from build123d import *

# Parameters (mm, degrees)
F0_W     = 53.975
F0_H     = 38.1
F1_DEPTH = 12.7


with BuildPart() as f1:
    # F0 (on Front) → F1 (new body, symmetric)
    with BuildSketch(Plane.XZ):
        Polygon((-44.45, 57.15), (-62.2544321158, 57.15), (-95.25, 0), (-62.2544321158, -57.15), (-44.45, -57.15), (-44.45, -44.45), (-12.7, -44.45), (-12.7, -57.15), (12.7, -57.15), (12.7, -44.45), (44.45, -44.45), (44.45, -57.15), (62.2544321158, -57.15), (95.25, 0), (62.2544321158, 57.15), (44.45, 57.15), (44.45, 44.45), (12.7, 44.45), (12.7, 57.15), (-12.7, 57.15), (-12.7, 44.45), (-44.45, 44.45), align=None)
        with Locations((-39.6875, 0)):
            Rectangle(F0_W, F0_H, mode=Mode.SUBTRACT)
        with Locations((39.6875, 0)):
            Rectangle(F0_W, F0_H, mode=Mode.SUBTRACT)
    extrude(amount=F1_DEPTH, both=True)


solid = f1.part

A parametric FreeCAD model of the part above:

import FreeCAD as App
import Part
import Sketcher
from FreeCAD import Vector
Q = App.Units.Quantity

doc = App.newDocument("Part")
body = doc.addObject("PartDesign::Body", "Body")

# Sketch on XZ plane
sketch1 = doc.addObject("Sketcher::SketchObject", "Sketch")
body.addObject(sketch1)
sketch1.AttachmentSupport = (doc.XZ_Plane, [""])
sketch1.MapMode = "FlatFace"
sketch1.addGeometry([
    Part.LineSegment(Vector(-44, 57, 0), Vector(-62, 57, 0)),  # 0
    Part.LineSegment(Vector(-62, 57, 0), Vector(-95, 0, 0)),  # 1
    Part.LineSegment(Vector(-95, 0, 0), Vector(-62, -57, 0)),  # 2
    Part.LineSegment(Vector(-62, -57, 0), Vector(-44, -57, 0)),  # 3
    Part.LineSegment(Vector(-44, -57, 0), Vector(-44, -44, 0)),  # 4
    Part.LineSegment(Vector(-44, -44, 0), Vector(-13, -44, 0)),  # 5
    Part.LineSegment(Vector(-13, -44, 0), Vector(-13, -57, 0)),  # 6
    Part.LineSegment(Vector(-13, -57, 0), Vector(13, -57, 0)),  # 7
    Part.LineSegment(Vector(13, -57, 0), Vector(13, -44, 0)),  # 8
    Part.LineSegment(Vector(13, -44, 0), Vector(44, -44, 0)),  # 9
    Part.LineSegment(Vector(44, -44, 0), Vector(44, -57, 0)),  # 10
    Part.LineSegment(Vector(44, -57, 0), Vector(62, -57, 0)),  # 11
    Part.LineSegment(Vector(62, -57, 0), Vector(95, 0, 0)),  # 12
    Part.LineSegment(Vector(95, 0, 0), Vector(62, 57, 0)),  # 13
    Part.LineSegment(Vector(62, 57, 0), Vector(44, 57, 0)),  # 14
    Part.LineSegment(Vector(44, 57, 0), Vector(44, 44, 0)),  # 15
    Part.LineSegment(Vector(44, 44, 0), Vector(13, 44, 0)),  # 16
    Part.LineSegment(Vector(13, 44, 0), Vector(13, 57, 0)),  # 17
    Part.LineSegment(Vector(13, 57, 0), Vector(-13, 57, 0)),  # 18
    Part.LineSegment(Vector(-13, 57, 0), Vector(-13, 44, 0)),  # 19
    Part.LineSegment(Vector(-13, 44, 0), Vector(-44, 44, 0)),  # 20
    Part.LineSegment(Vector(-44, 44, 0), Vector(-44, 57, 0)),  # 21
    Part.LineSegment(Vector(-13, -19, 0), Vector(-67, -19, 0)),  # 22
    Part.LineSegment(Vector(-67, -19, 0), Vector(-67, 19, 0)),  # 23
    Part.LineSegment(Vector(-67, 19, 0), Vector(-13, 19, 0)),  # 24
    Part.LineSegment(Vector(-13, 19, 0), Vector(-13, -19, 0)),  # 25
    Part.LineSegment(Vector(67, -19, 0), Vector(13, -19, 0)),  # 26
    Part.LineSegment(Vector(13, -19, 0), Vector(13, 19, 0)),  # 27
    Part.LineSegment(Vector(13, 19, 0), Vector(67, 19, 0)),  # 28
    Part.LineSegment(Vector(67, 19, 0), Vector(67, -19, 0)),  # 29
], False)
sketch1.addConstraint([
    Sketcher.Constraint("Coincident", 0, 2, 1, 1),
    Sketcher.Constraint("Coincident", 1, 2, 2, 1),
    Sketcher.Constraint("Coincident", 2, 2, 3, 1),
    Sketcher.Constraint("Coincident", 3, 2, 4, 1),
    Sketcher.Constraint("Coincident", 4, 2, 5, 1),
    Sketcher.Constraint("Coincident", 5, 2, 6, 1),
    Sketcher.Constraint("Coincident", 6, 2, 7, 1),
    Sketcher.Constraint("Coincident", 7, 2, 8, 1),
    Sketcher.Constraint("Coincident", 8, 2, 9, 1),
    Sketcher.Constraint("Coincident", 9, 2, 10, 1),
    Sketcher.Constraint("Coincident", 10, 2, 11, 1),
    Sketcher.Constraint("Coincident", 11, 2, 12, 1),
    Sketcher.Constraint("Coincident", 12, 2, 13, 1),
    Sketcher.Constraint("Coincident", 13, 2, 14, 1),
    Sketcher.Constraint("Coincident", 14, 2, 15, 1),
    Sketcher.Constraint("Coincident", 15, 2, 16, 1),
    Sketcher.Constraint("Coincident", 16, 2, 17, 1),
    Sketcher.Constraint("Coincident", 17, 2, 18, 1),
    Sketcher.Constraint("Coincident", 18, 2, 19, 1),
    Sketcher.Constraint("Coincident", 19, 2, 20, 1),
    Sketcher.Constraint("Coincident", 20, 2, 21, 1),
    Sketcher.Constraint("Coincident", 21, 2, 0, 1),
    Sketcher.Constraint("Coincident", 22, 2, 23, 1),
    Sketcher.Constraint("Coincident", 23, 2, 24, 1),
    Sketcher.Constraint("Coincident", 24, 2, 25, 1),
    Sketcher.Constraint("Coincident", 25, 2, 22, 1),
    Sketcher.Constraint("Coincident", 26, 2, 27, 1),
    Sketcher.Constraint("Coincident", 27, 2, 28, 1),
    Sketcher.Constraint("Coincident", 28, 2, 29, 1),
    Sketcher.Constraint("Coincident", 29, 2, 26, 1),
    Sketcher.Constraint("Horizontal", 0),
    Sketcher.Constraint("Horizontal", 3),
    Sketcher.Constraint("Vertical", 4),
    Sketcher.Constraint("Horizontal", 5),
    Sketcher.Constraint("Vertical", 6),
    Sketcher.Constraint("Horizontal", 7),
    Sketcher.Constraint("Vertical", 8),
    Sketcher.Constraint("Horizontal", 9),
    Sketcher.Constraint("Vertical", 10),
    Sketcher.Constraint("Horizontal", 11),
    Sketcher.Constraint("Horizontal", 14),
    Sketcher.Constraint("Vertical", 15),
    Sketcher.Constraint("Horizontal", 16),
    Sketcher.Constraint("Vertical", 17),
    Sketcher.Constraint("Horizontal", 18),
    Sketcher.Constraint("Vertical", 19),
    Sketcher.Constraint("Horizontal", 20),
    Sketcher.Constraint("Vertical", 21),
    Sketcher.Constraint("Horizontal", 22),
    Sketcher.Constraint("Vertical", 23),
    Sketcher.Constraint("Horizontal", 24),
    Sketcher.Constraint("Vertical", 25),
    Sketcher.Constraint("Horizontal", 26),
    Sketcher.Constraint("Vertical", 27),
    Sketcher.Constraint("Horizontal", 28),
    Sketcher.Constraint("Vertical", 29),
    Sketcher.Constraint("Symmetric", 0, 2, 11, 2, -1, 1),
    Sketcher.Constraint("Symmetric", 1, 2, 12, 2, -1, 1),
    Sketcher.Constraint("Symmetric", 2, 2, 13, 2, -1, 1),
    Sketcher.Constraint("Symmetric", 4, 2, 15, 2, -1, 1),
    Sketcher.Constraint("Symmetric", 6, 2, 17, 2, -1, 1),
    Sketcher.Constraint("Symmetric", 8, 2, 19, 2, -1, 1),
    Sketcher.Constraint("Symmetric", 24, 2, 26, 2, -1, 1),
    Sketcher.Constraint("Symmetric", 22, 2, 28, 2, -1, 1),
    Sketcher.Constraint("Symmetric", 5, 2, 8, 2, -2),
    Sketcher.Constraint("Symmetric", 3, 2, 10, 2, -2),
    Sketcher.Constraint("PointOnObject", 1, 2, -1),
    Sketcher.Constraint("Horizontal", 3, 2, 6, 2),
    Sketcher.Constraint("Horizontal", 25, 2, 26, 2),
    Sketcher.Constraint("Vertical", 0, 2, 2, 2),
    Sketcher.Constraint("Vertical", 4, 2, 20, 2),
    Sketcher.Constraint("Vertical", 19, 2, 24, 2),
    Sketcher.Constraint("DistanceX", 7, 1, 7, 2, Q("1 in")),
    Sketcher.Constraint("DistanceY", 4, 1, 4, 2, Q("0.5 in")),
    Sketcher.Constraint("DistanceY", 23, 1, 23, 2, Q("1.5 in")),
    Sketcher.Constraint("Angle", 1, Q("-120 deg")),
    Sketcher.Constraint("DistanceX", 1, 2, 3, 2, Q("2 in")),
    Sketcher.Constraint("DistanceY", 4, 2, 0, 2, Q("4 in")),
    Sketcher.Constraint("DistanceX", 5, 1, 5, 2, Q("1.25 in")),
    Sketcher.Constraint("DistanceX", 22, 2, 22, 1, Q("2.125 in")),
])
pad1 = doc.addObject("PartDesign::Pad", "Pad")
body.addObject(pad1)
pad1.Profile = sketch1
pad1.Length = Q("1 in")
pad1.Midplane = True

doc.recompute()
